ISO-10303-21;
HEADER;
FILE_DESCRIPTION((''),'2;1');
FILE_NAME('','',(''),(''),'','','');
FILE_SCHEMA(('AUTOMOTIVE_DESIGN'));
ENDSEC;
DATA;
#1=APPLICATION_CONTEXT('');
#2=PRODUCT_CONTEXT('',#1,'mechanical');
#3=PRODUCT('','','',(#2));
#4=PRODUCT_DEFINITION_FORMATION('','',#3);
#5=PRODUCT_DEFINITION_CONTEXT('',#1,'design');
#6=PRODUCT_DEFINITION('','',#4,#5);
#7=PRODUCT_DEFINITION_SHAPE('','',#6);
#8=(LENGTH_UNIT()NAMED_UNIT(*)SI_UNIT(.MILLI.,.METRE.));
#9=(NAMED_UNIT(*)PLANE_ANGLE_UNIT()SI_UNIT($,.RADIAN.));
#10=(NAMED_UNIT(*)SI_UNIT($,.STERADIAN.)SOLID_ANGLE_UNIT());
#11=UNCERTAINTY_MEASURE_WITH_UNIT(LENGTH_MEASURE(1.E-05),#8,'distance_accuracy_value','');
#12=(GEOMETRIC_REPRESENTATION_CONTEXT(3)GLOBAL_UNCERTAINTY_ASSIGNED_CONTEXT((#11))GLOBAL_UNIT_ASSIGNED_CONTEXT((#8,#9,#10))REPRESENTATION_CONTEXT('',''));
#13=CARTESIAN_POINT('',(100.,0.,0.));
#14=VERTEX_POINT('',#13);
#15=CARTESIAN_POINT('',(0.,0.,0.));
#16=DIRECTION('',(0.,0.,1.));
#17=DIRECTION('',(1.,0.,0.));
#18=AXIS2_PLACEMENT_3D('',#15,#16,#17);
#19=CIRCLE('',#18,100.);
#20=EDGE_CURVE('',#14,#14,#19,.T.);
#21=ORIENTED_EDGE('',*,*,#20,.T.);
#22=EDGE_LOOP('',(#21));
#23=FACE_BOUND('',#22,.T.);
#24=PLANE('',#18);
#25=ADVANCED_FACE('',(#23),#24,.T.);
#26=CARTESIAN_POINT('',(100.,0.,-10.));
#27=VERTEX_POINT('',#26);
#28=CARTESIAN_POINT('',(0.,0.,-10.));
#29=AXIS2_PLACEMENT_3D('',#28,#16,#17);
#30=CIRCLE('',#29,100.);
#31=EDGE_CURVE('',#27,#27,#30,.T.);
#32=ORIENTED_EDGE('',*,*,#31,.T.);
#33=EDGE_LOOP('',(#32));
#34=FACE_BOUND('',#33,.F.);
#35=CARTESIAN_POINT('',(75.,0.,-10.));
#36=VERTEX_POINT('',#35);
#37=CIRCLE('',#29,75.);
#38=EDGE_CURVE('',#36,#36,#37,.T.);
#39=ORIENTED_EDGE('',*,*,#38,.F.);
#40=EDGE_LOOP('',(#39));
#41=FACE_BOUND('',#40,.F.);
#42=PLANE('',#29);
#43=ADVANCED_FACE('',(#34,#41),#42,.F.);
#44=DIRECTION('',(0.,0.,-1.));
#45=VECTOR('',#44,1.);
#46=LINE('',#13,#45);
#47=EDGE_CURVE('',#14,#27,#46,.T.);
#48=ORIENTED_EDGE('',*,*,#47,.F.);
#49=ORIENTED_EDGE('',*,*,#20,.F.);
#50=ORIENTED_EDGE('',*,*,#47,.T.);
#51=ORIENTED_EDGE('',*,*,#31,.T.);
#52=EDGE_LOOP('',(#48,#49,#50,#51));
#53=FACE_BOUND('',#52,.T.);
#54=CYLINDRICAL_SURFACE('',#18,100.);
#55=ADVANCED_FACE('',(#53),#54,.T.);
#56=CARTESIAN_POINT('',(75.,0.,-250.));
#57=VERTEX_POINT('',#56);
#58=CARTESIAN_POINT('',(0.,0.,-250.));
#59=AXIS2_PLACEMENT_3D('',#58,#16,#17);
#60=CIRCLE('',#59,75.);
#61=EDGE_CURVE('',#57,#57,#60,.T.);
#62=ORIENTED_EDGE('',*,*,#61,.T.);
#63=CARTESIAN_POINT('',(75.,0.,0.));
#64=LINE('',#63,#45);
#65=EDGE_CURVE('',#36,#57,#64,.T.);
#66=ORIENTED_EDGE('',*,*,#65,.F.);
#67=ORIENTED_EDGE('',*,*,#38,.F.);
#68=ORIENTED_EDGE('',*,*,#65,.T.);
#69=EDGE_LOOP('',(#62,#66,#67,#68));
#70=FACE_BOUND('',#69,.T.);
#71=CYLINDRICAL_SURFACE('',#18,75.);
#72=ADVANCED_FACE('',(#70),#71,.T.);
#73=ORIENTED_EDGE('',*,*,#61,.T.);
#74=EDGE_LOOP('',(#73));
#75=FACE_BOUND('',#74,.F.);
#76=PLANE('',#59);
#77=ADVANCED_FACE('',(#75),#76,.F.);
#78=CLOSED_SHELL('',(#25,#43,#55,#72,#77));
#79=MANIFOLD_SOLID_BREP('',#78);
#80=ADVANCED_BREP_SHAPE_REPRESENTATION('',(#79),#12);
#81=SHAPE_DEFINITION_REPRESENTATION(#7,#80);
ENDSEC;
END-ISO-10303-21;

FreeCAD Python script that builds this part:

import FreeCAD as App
import Part
import Sketcher

V = App.Vector
Q = App.Units.Quantity

doc = App.newDocument("Part")
params = doc.addObject("Spreadsheet::Sheet", "Params")
for row, (alias, value) in enumerate([
    ("sketch1_diameter", "200 mm"),
    ("sketch1_diameter2", "150 mm"),
    ("pad1_length", "10 mm"),
    ("sketch2_diameter", "150 mm"),
    ("pad2_length", "250 mm"),
], start=1):
    params.set(f"A{row}", alias)
    params.set(f"B{row}", "=" + value)
    params.setAlias(f"B{row}", alias)

body = doc.addObject("PartDesign::Body", "Body")

# Sketch on XY plane
sketch1 = body.newObject("Sketcher::SketchObject", "Sketch")
sketch1.AttachmentSupport = (doc.getObject("XY_Plane"), [""])
sketch1.MapMode = "FlatFace"
sketch1.addGeometry([
    Part.Circle(V(0, 0, 0), V(0, 0, 1), 100),
    Part.Circle(V(0, 0, 0), V(0, 0, 1), 75),
], False)
sketch1.addConstraint([
    Sketcher.Constraint("Coincident", 0, 3, -1, 1),
    Sketcher.Constraint("Coincident", 1, 3, -1, 1),
    Sketcher.Constraint("Diameter", 0, Q("200 mm")),
    Sketcher.Constraint("Diameter", 1, Q("150 mm")),
])
sketch1.setExpression("Constraints[2]", "Params.sketch1_diameter")
sketch1.setExpression("Constraints[3]", "Params.sketch1_diameter2")
pad1 = body.newObject("PartDesign::Pad", "Pad")
pad1.Profile = sketch1
pad1.setExpression("Length", "Params.pad1_length")
pad1.Reversed = True

# Sketch on XY plane
sketch2 = body.newObject("Sketcher::SketchObject", "Sketch001")
sketch2.AttachmentSupport = (doc.getObject("XY_Plane"), [""])
sketch2.MapMode = "FlatFace"
sketch2.addGeometry(Part.Circle(V(0, 0, 0), V(0, 0, 1), 75), False)
sketch2.addConstraint([
    Sketcher.Constraint("Coincident", 0, 3, -1, 1),
    Sketcher.Constraint("Diameter", 0, Q("150 mm")),
])
sketch2.setExpression("Constraints[1]", "Params.sketch2_diameter")
pad2 = body.newObject("PartDesign::Pad", "Pad001")
pad2.Profile = sketch2
pad2.setExpression("Length", "Params.pad2_length")
pad2.Reversed = True

doc.recompute()
